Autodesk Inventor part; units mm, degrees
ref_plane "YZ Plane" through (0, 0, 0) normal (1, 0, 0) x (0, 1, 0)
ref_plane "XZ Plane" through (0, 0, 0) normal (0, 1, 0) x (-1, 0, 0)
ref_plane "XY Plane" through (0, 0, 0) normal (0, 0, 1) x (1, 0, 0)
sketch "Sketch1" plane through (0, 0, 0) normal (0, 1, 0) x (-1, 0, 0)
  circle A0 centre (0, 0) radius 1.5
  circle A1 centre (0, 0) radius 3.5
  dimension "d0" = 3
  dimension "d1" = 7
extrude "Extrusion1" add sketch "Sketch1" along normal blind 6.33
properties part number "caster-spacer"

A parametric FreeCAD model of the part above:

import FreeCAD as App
import Part
import Sketcher
from FreeCAD import Vector

doc = App.newDocument("Part")
params = doc.addObject("Spreadsheet::Sheet", "Params")
for row, (alias, value) in enumerate([
    ("sketch1_diameter", "7 mm"),
    ("sketch1_diameter2", "3 mm"),
    ("pad1_length", "6.33 mm"),
], start=1):
    params.set(f"A{row}", alias)
    params.set(f"B{row}", "=" + value)
    params.setAlias(f"B{row}", alias)

body = doc.addObject("PartDesign::Body", "Body")

sketch1 = body.newObject("Sketcher::SketchObject", "Sketch")
sketch1.AttachmentSupport = (doc.getObject("XZ_Plane"), [""])
sketch1.MapMode = "FlatFace"
sketch1.addGeometry([
    Part.Circle(Vector(0, 0, 0), Vector(0, 0, 1), 3.5),
    Part.Circle(Vector(0, 0, 0), Vector(0, 0, 1), 1.5),
], False)
sketch1.addConstraint([
    Sketcher.Constraint("Coincident", 0, 3, -1, 1),
    Sketcher.Constraint("Coincident", 1, 3, -1, 1),
    Sketcher.Constraint("Diameter", 0, 7.0),
    Sketcher.Constraint("Diameter", 1, 3.0),
])
sketch1.setExpression("Constraints[2]", "Params.sketch1_diameter")
sketch1.setExpression("Constraints[3]", "Params.sketch1_diameter2")
pad1 = body.newObject("PartDesign::Pad", "Pad")
pad1.Profile = sketch1
pad1.setExpression("Length", "Params.pad1_length")
pad1.Reversed = True

doc.recompute()
